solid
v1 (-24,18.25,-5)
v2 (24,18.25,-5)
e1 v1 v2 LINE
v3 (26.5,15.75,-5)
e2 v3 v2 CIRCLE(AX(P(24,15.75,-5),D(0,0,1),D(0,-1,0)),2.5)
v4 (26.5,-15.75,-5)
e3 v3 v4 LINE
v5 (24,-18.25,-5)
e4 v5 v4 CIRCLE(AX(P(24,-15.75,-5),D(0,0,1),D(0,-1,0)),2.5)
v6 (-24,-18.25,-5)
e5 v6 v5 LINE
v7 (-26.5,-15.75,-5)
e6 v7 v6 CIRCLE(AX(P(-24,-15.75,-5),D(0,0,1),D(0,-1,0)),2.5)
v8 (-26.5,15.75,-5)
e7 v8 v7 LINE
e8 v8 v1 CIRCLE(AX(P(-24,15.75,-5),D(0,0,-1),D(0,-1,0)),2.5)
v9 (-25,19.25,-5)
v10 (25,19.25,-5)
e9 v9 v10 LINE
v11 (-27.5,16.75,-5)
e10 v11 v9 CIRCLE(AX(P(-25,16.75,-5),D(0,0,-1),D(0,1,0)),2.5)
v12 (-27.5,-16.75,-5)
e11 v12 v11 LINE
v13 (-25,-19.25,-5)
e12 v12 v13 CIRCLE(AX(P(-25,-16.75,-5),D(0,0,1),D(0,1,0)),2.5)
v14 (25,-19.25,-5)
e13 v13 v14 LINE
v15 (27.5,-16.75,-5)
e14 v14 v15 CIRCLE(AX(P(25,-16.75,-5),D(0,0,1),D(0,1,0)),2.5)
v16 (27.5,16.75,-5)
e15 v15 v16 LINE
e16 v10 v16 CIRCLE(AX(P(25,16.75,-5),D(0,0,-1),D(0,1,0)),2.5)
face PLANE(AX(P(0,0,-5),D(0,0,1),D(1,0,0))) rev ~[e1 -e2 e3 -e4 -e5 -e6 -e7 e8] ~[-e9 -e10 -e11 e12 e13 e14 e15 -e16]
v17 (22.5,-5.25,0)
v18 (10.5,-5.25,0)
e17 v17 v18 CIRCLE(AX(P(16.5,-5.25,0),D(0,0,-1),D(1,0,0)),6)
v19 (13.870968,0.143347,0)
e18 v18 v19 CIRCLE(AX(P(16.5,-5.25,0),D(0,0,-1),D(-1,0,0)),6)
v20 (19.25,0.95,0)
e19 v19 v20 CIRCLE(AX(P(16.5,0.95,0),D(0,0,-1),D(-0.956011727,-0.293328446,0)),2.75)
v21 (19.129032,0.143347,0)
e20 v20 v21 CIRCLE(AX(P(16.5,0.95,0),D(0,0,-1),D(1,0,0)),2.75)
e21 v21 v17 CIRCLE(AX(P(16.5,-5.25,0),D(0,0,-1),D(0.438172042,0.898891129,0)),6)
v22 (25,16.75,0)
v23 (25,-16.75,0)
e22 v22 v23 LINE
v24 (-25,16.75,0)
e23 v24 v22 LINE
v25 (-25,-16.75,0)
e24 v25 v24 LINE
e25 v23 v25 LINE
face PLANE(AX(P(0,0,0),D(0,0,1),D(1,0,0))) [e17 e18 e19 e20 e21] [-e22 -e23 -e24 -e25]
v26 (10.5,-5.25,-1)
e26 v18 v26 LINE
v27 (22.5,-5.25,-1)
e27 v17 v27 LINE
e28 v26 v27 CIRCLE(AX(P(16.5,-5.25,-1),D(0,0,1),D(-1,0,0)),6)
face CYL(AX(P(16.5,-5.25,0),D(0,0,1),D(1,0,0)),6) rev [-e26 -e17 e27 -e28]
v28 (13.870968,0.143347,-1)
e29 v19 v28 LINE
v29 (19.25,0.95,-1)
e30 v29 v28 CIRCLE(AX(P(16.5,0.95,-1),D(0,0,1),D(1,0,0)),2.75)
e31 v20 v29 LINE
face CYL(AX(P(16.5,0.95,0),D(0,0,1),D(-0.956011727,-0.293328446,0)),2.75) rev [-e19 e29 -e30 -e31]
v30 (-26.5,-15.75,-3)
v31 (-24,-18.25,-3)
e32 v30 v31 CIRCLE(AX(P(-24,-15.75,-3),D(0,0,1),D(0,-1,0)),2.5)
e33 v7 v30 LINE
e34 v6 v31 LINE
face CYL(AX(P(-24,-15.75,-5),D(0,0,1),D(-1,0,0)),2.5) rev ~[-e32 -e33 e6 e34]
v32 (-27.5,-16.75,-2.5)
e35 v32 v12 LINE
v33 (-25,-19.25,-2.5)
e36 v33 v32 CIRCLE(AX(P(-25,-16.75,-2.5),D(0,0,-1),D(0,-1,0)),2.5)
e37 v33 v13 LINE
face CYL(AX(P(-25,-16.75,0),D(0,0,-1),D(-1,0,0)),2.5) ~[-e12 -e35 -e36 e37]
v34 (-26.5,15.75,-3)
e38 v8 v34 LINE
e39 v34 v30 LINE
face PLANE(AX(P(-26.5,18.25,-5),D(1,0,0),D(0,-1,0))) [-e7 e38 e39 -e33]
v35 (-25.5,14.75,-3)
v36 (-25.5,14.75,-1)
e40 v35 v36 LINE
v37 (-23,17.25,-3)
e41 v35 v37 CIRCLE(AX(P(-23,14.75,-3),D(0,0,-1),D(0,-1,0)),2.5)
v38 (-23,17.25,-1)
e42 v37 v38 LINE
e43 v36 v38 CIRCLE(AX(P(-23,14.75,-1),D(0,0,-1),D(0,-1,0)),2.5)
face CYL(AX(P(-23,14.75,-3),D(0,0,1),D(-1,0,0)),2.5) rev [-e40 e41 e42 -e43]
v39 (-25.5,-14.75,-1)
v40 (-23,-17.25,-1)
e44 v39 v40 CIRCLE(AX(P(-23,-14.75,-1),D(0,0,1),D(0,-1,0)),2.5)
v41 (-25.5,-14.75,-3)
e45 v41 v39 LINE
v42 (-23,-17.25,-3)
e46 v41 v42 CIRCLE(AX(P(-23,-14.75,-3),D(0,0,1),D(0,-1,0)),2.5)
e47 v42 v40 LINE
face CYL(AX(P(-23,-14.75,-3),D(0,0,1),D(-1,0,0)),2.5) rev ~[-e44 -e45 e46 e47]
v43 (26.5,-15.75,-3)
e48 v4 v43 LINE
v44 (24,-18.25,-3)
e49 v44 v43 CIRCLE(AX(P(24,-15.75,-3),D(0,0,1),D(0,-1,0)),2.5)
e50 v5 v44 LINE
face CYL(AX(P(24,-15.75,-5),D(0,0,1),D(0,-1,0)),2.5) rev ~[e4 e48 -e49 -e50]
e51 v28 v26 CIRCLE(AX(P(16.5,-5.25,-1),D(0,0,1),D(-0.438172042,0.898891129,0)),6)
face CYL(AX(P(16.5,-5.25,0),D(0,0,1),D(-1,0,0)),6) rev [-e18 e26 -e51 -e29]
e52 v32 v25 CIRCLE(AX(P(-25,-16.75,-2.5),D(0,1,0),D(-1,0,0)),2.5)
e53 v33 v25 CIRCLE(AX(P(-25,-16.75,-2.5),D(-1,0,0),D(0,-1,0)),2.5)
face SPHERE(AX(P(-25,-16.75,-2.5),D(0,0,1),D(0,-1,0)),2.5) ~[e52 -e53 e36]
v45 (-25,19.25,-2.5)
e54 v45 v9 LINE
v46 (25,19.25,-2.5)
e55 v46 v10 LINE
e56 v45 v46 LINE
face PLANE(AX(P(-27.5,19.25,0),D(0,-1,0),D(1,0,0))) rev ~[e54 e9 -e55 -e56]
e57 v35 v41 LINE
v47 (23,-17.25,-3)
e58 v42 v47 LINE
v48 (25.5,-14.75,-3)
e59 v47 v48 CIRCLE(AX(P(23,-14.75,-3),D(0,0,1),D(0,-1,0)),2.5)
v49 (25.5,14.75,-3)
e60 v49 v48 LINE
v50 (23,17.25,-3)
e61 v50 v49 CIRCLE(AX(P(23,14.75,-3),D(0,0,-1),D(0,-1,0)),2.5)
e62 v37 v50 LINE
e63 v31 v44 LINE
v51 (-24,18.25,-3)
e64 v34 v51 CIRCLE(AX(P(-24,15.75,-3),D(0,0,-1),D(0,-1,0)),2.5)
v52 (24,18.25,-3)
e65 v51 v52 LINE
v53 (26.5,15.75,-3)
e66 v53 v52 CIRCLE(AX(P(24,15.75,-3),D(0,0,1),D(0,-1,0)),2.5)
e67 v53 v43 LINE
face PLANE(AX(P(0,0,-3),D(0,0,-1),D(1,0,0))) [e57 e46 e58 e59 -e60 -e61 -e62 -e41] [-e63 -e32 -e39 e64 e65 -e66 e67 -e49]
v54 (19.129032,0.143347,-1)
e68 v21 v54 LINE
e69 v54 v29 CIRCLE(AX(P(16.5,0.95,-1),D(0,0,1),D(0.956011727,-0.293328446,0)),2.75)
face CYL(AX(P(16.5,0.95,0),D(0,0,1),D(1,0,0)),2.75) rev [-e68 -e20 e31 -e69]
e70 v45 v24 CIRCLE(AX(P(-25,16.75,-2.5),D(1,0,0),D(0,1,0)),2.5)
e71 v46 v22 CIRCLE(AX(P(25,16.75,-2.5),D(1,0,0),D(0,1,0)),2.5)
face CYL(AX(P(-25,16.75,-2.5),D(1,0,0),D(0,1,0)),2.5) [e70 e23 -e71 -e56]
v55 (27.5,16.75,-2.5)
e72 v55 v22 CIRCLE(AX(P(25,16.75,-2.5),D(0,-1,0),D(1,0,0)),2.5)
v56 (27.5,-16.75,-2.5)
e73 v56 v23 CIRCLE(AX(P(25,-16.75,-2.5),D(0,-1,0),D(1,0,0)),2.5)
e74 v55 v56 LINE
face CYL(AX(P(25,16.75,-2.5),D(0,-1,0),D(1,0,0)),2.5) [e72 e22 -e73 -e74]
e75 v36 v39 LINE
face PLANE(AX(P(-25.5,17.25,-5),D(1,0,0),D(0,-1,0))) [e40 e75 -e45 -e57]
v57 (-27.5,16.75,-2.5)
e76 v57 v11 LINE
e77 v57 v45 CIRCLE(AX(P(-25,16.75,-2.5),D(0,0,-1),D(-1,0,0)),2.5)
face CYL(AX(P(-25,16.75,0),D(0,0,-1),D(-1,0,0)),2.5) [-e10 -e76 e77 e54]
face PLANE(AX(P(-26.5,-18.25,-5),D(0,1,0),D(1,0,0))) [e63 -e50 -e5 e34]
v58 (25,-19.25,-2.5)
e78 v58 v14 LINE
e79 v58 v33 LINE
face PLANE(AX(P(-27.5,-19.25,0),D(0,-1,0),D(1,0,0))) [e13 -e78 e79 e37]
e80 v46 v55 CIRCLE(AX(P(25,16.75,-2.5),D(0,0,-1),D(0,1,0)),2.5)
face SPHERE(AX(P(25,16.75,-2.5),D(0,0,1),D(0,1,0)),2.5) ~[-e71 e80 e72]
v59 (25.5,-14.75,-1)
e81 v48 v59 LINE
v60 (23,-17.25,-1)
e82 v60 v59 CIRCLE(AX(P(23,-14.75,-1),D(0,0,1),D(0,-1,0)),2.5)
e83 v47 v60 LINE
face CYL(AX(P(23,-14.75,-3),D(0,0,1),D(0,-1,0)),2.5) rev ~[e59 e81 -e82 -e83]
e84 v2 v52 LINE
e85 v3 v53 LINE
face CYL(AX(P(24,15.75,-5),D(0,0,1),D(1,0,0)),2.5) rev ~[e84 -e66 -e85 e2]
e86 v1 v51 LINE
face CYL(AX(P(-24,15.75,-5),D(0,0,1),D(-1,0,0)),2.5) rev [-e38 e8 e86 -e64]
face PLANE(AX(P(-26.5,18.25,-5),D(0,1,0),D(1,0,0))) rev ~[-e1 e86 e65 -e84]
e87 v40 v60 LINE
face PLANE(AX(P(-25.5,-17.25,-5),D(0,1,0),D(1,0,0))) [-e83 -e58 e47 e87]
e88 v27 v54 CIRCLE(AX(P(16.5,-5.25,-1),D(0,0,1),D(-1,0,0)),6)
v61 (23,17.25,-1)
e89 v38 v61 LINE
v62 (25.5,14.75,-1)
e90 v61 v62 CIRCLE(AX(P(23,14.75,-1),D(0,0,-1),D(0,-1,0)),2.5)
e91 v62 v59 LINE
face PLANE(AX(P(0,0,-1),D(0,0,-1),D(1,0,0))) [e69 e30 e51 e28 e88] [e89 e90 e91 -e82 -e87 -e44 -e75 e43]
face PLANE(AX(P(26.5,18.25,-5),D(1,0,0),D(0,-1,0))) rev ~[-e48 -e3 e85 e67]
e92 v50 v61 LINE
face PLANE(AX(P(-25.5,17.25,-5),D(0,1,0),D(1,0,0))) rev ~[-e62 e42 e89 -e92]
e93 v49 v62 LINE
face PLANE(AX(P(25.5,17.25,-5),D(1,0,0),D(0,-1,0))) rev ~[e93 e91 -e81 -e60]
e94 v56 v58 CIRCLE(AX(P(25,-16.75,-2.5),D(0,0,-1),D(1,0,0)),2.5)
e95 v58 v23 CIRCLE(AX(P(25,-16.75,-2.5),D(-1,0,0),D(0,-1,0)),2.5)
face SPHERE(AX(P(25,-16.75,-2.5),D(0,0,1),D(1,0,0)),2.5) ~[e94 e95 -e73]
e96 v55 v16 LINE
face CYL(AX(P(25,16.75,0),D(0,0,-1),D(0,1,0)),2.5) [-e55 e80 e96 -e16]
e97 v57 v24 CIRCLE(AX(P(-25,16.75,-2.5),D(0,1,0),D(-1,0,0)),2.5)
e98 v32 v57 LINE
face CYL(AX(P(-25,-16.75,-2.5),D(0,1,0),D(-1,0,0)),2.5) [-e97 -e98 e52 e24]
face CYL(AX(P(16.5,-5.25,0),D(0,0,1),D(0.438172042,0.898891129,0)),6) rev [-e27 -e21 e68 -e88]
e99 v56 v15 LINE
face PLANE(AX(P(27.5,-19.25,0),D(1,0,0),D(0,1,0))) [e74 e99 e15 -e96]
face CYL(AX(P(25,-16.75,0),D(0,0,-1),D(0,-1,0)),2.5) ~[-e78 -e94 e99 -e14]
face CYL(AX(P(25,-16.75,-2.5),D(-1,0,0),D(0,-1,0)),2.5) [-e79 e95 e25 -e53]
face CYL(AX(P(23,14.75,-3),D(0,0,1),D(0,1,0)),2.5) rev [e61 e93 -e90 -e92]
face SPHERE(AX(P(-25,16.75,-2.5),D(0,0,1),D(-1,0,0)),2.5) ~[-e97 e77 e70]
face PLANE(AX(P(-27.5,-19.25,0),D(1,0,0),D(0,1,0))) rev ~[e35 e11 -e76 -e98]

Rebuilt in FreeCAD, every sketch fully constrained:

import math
import FreeCAD as App
import Part
import Sketcher
from FreeCAD import Vector


def edges_at(feature, points):
    """Names of the edges that pass closest to the given points."""
    edges = feature.Shape.Edges
    near = lambda p: min(range(len(edges)), key=lambda i: edges[i].distToShape(Part.Vertex(*p))[0])
    return sorted({f"Edge{near(p) + 1}" for p in points})

doc = App.newDocument("Part")
body = doc.addObject("PartDesign::Body", "Body")

sketch1 = body.newObject("Sketcher::SketchObject", "Sketch")
sketch1.AttachmentSupport = (doc.getObject("XY_Plane"), [""])
sketch1.MapMode = "FlatFace"
sketch1.addGeometry([
    Part.LineSegment(Vector(-27.5, 19.2, 0), Vector(-27.5, -19.2, 0)),
    Part.LineSegment(Vector(-27.5, -19.2, 0), Vector(27.5, -19.2, 0)),
    Part.LineSegment(Vector(27.5, -19.2, 0), Vector(27.5, 19.2, 0)),
    Part.LineSegment(Vector(27.5, 19.2, 0), Vector(-27.5, 19.2, 0)),
    Part.ArcOfCircle(Part.Circle(Vector(16.5, -5.2, 0), Vector(0, 0, 1), 6), math.radians(0), math.radians(64)),
    Part.ArcOfCircle(Part.Circle(Vector(16.5, -5.2, 0), Vector(0, 0, 1), 6), math.radians(180), math.radians(360)),
    Part.ArcOfCircle(Part.Circle(Vector(16.5, -5.2, 0), Vector(0, 0, 1), 6), math.radians(116), math.radians(180)),
    Part.ArcOfCircle(Part.Circle(Vector(16.5, 0.9, 0), Vector(0, 0, 1), 2.8), math.radians(0), math.radians(197)),
    Part.ArcOfCircle(Part.Circle(Vector(16.5, 0.9, 0), Vector(0, 0, 1), 2.7), math.radians(-17.06), math.radians(0)),
], False)
sketch1.addConstraint([
    Sketcher.Constraint("Coincident", 0, 2, 1, 1),
    Sketcher.Constraint("Coincident", 1, 2, 2, 1),
    Sketcher.Constraint("Coincident", 2, 2, 3, 1),
    Sketcher.Constraint("Coincident", 3, 2, 0, 1),
    Sketcher.Constraint("Tangent", 4, 1, 5, 2),
    Sketcher.Constraint("Tangent", 5, 1, 6, 2),
    Sketcher.Constraint("Coincident", 6, 1, 7, 2),
    Sketcher.Constraint("Tangent", 7, 1, 8, 2),
    Sketcher.Constraint("Coincident", 8, 1, 4, 2),
    Sketcher.Constraint("Vertical", 0),
    Sketcher.Constraint("Horizontal", 1),
    Sketcher.Constraint("Vertical", 2),
    Sketcher.Constraint("Horizontal", 3),
    Sketcher.Constraint("Equal", 4, 5),
    Sketcher.Constraint("Equal", 5, 6),
    Sketcher.Constraint("Equal", 7, 8),
    Sketcher.Constraint("Symmetric", 0, 2, 2, 2, -1, 1),
    Sketcher.Constraint("Horizontal", 6, 3, 4, 1),
    Sketcher.Constraint("Horizontal", 4, 1, 5, 1),
    Sketcher.Constraint("Horizontal", 8, 3, 7, 1),
    Sketcher.Constraint("Horizontal", 6, 1, 8, 1),
    Sketcher.Constraint("Radius", 4, 6.0),
    Sketcher.Constraint("DistanceX", 1, 1, 1, 2, 55.0),
    Sketcher.Constraint("Radius", 7, 2.75),
    Sketcher.Constraint("DistanceY", 0, 2, 0, 1, 38.5),
    Sketcher.Constraint("DistanceX", 0, 2, 4, 3, 44.0),
    Sketcher.Constraint("DistanceY", 0, 2, 4, 3, 14.0),
    Sketcher.Constraint("DistanceY", 4, 3, 7, 3, 6.2),
])
pad1 = body.newObject("PartDesign::Pad", "Pad")
pad1.Profile = sketch1
pad1.Length = 5
pad1.Reversed = True

sketch2 = body.newObject("Sketcher::SketchObject", "Sketch001")
sketch2.AttachmentSupport = (doc.getObject("XY_Plane"), [""])
sketch2.MapMode = "FlatFace"
sketch2.AttachmentOffset = App.Placement(Vector(0, 0, -5), App.Rotation())
sketch2.addGeometry([
    Part.LineSegment(Vector(-25.5, -17.2, 0), Vector(-25.5, 17.2, 0)),
    Part.LineSegment(Vector(-25.5, 17.2, 0), Vector(25.5, 17.2, 0)),
    Part.LineSegment(Vector(25.5, 17.2, 0), Vector(25.5, -17.2, 0)),
    Part.LineSegment(Vector(25.5, -17.2, 0), Vector(-25.5, -17.2, 0)),
    Part.ArcOfCircle(Part.Circle(Vector(16.5, 0.9, 0), Vector(0, 0, 1), 2.8), math.radians(0), math.radians(197)),
    Part.ArcOfCircle(Part.Circle(Vector(16.5, -5.2, 0), Vector(0, 0, 1), 6), math.radians(116), math.radians(180)),
    Part.ArcOfCircle(Part.Circle(Vector(16.5, -5.2, 0), Vector(0, 0, 1), 6), math.radians(180), math.radians(424)),
    Part.ArcOfCircle(Part.Circle(Vector(16.5, 0.9, 0), Vector(0, 0, 1), 2.7), math.radians(-17.06), math.radians(0)),
], False)
sketch2.addConstraint([
    Sketcher.Constraint("Coincident", 0, 2, 1, 1),
    Sketcher.Constraint("Coincident", 1, 2, 2, 1),
    Sketcher.Constraint("Coincident", 2, 2, 3, 1),
    Sketcher.Constraint("Coincident", 3, 2, 0, 1),
    Sketcher.Constraint("Coincident", 4, 2, 5, 1),
    Sketcher.Constraint("Tangent", 5, 2, 6, 1),
    Sketcher.Constraint("Coincident", 6, 2, 7, 1),
    Sketcher.Constraint("Tangent", 7, 2, 4, 1),
    Sketcher.Constraint("Vertical", 0),
    Sketcher.Constraint("Horizontal", 1),
    Sketcher.Constraint("Vertical", 2),
    Sketcher.Constraint("Horizontal", 3),
    Sketcher.Constraint("Equal", 5, 6),
    Sketcher.Constraint("Equal", 4, 7),
    Sketcher.Constraint("Symmetric", 0, 2, 2, 2, -1, 1),
    Sketcher.Constraint("Horizontal", 6, 3, 5, 2),
    Sketcher.Constraint("Horizontal", 4, 2, 6, 2),
    Sketcher.Constraint("Horizontal", 4, 3, 7, 2),
    Sketcher.Constraint("Radius", 5, 6.0),
    Sketcher.Constraint("DistanceX", 1, 1, 1, 2, 51.0),
    Sketcher.Constraint("Radius", 4, 2.75),
    Sketcher.Constraint("DistanceY", 0, 1, 0, 2, 34.5),
    Sketcher.Constraint("DistanceX", 0, 2, 4, 3, 42.0),
    Sketcher.Constraint("DistanceY", 2, 2, 5, 3, 12.0),
    Sketcher.Constraint("DistanceY", 5, 3, 4, 3, 6.2),
])
pocket1 = body.newObject("PartDesign::Pocket", "Pocket")
pocket1.Profile = sketch2
pocket1.Length = 4
pocket1.Reversed = True

sketch3 = body.newObject("Sketcher::SketchObject", "Sketch002")
sketch3.AttachmentSupport = (doc.getObject("XY_Plane"), [""])
sketch3.MapMode = "FlatFace"
sketch3.AttachmentOffset = App.Placement(Vector(0, 0, -5), App.Rotation())
sketch3.addGeometry([
    Part.LineSegment(Vector(-26, -18, 0), Vector(-26, 18, 0)),
    Part.LineSegment(Vector(-26, 18, 0), Vector(26, 18, 0)),
    Part.LineSegment(Vector(26, 18, 0), Vector(26, -18, 0)),
    Part.LineSegment(Vector(26, -18, 0), Vector(-26, -18, 0)),
    Part.LineSegment(Vector(26, 17, 0), Vector(-26, 17, 0)),
    Part.LineSegment(Vector(-26, 17, 0), Vector(-26, -17, 0)),
    Part.LineSegment(Vector(-26, -17, 0), Vector(26, -17, 0)),
    Part.LineSegment(Vector(26, -17, 0), Vector(26, 17, 0)),
], False)
sketch3.addConstraint([
    Sketcher.Constraint("Coincident", 0, 2, 1, 1),
    Sketcher.Constraint("Coincident", 1, 2, 2, 1),
    Sketcher.Constraint("Coincident", 2, 2, 3, 1),
    Sketcher.Constraint("Coincident", 3, 2, 0, 1),
    Sketcher.Constraint("Coincident", 4, 2, 5, 1),
    Sketcher.Constraint("Coincident", 5, 2, 6, 1),
    Sketcher.Constraint("Coincident", 6, 2, 7, 1),
    Sketcher.Constraint("Coincident", 7, 2, 4, 1),
    Sketcher.Constraint("Vertical", 0),
    Sketcher.Constraint("Horizontal", 1),
    Sketcher.Constraint("Vertical", 2),
    Sketcher.Constraint("Horizontal", 3),
    Sketcher.Constraint("Horizontal", 4),
    Sketcher.Constraint("Vertical", 5),
    Sketcher.Constraint("Horizontal", 6),
    Sketcher.Constraint("Vertical", 7),
    Sketcher.Constraint("Symmetric", 0, 2, 2, 2, -1, 1),
    Sketcher.Constraint("Symmetric", 4, 2, 6, 2, -1, 1),
    Sketcher.Constraint("DistanceX", 1, 1, 1, 2, 53.0),
    Sketcher.Constraint("DistanceX", 4, 2, 4, 1, 51.0),
    Sketcher.Constraint("DistanceY", 0, 1, 0, 2, 36.5),
    Sketcher.Constraint("DistanceY", 5, 2, 5, 1, 34.5),
])
pocket2 = body.newObject("PartDesign::Pocket", "Pocket001")
pocket2.Profile = sketch3
pocket2.Length = 2
pocket2.Reversed = True
doc.recompute()

fillet = body.newObject("PartDesign::Fillet", "Fillet")
fillet.Base = (pocket2, edges_at(pocket2, [
    (-27.5, 19.25, -2.5),
    (-26.5, 18.25, -4),
    (-25.5, 17.25, -2),
    (-27.5, -19.25, -2.5),
    (-26.5, -18.25, -4),
    (-25.5, -17.25, -2),
    (27.5, -19.25, -2.5),
    (27.5, 19.25, -2.5),
    (26.5, -18.25, -4),
    (25.5, -17.25, -2),
    (26.5, 18.25, -4),
    (25.5, 17.25, -2),
]))
fillet.Radius = 2.5
doc.recompute()

fillet2 = body.newObject("PartDesign::Fillet", "Fillet001")
fillet2.Base = (fillet, edges_at(fillet, [(-27.5, 0, 0)]))
fillet2.Radius = 2.5

doc.recompute()
